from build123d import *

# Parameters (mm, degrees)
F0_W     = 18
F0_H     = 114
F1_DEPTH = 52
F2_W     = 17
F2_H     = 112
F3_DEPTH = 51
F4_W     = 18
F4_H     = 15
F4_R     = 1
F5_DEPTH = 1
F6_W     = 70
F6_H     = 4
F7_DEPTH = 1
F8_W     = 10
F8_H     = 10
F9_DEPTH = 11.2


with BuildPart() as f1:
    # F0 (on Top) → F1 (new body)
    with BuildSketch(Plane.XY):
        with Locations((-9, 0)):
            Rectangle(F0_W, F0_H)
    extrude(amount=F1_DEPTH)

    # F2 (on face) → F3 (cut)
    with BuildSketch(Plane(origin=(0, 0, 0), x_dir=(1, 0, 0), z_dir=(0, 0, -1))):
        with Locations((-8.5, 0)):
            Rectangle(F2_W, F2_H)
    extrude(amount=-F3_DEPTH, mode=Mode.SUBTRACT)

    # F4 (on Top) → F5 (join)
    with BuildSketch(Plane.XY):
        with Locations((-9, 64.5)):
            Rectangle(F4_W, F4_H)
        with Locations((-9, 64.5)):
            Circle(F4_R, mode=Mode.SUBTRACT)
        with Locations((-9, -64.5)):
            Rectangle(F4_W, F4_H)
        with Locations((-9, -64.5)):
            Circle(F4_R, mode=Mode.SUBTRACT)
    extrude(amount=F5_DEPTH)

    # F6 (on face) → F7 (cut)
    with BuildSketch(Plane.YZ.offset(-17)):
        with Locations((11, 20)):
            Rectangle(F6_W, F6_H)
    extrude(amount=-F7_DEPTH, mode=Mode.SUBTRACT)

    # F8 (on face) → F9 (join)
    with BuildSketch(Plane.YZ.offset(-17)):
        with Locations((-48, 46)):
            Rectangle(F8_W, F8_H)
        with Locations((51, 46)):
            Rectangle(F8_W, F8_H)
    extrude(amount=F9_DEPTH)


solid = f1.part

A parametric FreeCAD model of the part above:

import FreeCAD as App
import Part
import Sketcher
Q = App.Units.Quantity

doc = App.newDocument("Part")
body = doc.addObject("PartDesign::Body", "Body")

# Sketch on XY plane
sketch1 = doc.addObject("Sketcher::SketchObject", "Sketch")
body.addObject(sketch1)
sketch1.AttachmentSupport = (doc.XY_Plane, [""])
sketch1.MapMode = "FlatFace"
sketch1.addGeometry([
    Part.LineSegment(App.Vector(-18, 57, 0), App.Vector(-18, -57, 0)),
    Part.LineSegment(App.Vector(-18, -57, 0), App.Vector(0, -57, 0)),
    Part.LineSegment(App.Vector(0, -57, 0), App.Vector(0, 57, 0)),
    Part.LineSegment(App.Vector(0, 57, 0), App.Vector(-18, 57, 0)),
], False)
sketch1.addConstraint([
    Sketcher.Constraint("Coincident", 0, 2, 1, 1),
    Sketcher.Constraint("Coincident", 1, 2, 2, 1),
    Sketcher.Constraint("Coincident", 2, 2, 3, 1),
    Sketcher.Constraint("Coincident", 3, 2, 0, 1),
    Sketcher.Constraint("Vertical", 0),
    Sketcher.Constraint("Horizontal", 1),
    Sketcher.Constraint("Vertical", 2),
    Sketcher.Constraint("Horizontal", 3),
    Sketcher.Constraint("Symmetric", 1, 2, 2, 2, -1, 1),
    Sketcher.Constraint("DistanceX", 1, 1, 1, 2, Q("18 mm")),
    Sketcher.Constraint("DistanceY", 0, 2, 0, 1, Q("114 mm")),
])
pad1 = doc.addObject("PartDesign::Pad", "Pad")
body.addObject(pad1)
pad1.Profile = sketch1
pad1.Length = 52

# Sketch on XY plane
sketch2 = doc.addObject("Sketcher::SketchObject", "Sketch001")
body.addObject(sketch2)
sketch2.AttachmentSupport = (doc.XY_Plane, [""])
sketch2.MapMode = "FlatFace"
sketch2.addGeometry([
    Part.LineSegment(App.Vector(-17, -56, 0), App.Vector(-17, 56, 0)),
    Part.LineSegment(App.Vector(-17, 56, 0), App.Vector(0, 56, 0)),
    Part.LineSegment(App.Vector(0, 56, 0), App.Vector(0, -56, 0)),
    Part.LineSegment(App.Vector(0, -56, 0), App.Vector(-17, -56, 0)),
], False)
sketch2.addConstraint([
    Sketcher.Constraint("Coincident", 0, 2, 1, 1),
    Sketcher.Constraint("Coincident", 1, 2, 2, 1),
    Sketcher.Constraint("Coincident", 2, 2, 3, 1),
    Sketcher.Constraint("Coincident", 3, 2, 0, 1),
    Sketcher.Constraint("Vertical", 0),
    Sketcher.Constraint("Horizontal", 1),
    Sketcher.Constraint("Vertical", 2),
    Sketcher.Constraint("Horizontal", 3),
    Sketcher.Constraint("Symmetric", 1, 2, 2, 2, -1, 1),
    Sketcher.Constraint("DistanceX", 1, 1, 1, 2, Q("17 mm")),
    Sketcher.Constraint("DistanceY", 0, 1, 0, 2, Q("112 mm")),
])
pocket1 = doc.addObject("PartDesign::Pocket", "Pocket")
body.addObject(pocket1)
pocket1.Profile = sketch2
pocket1.Length = 51
pocket1.Reversed = True

# Sketch on XY plane
sketch3 = doc.addObject("Sketcher::SketchObject", "Sketch002")
body.addObject(sketch3)
sketch3.AttachmentSupport = (doc.XY_Plane, [""])
sketch3.MapMode = "FlatFace"
sketch3.addGeometry([
    Part.LineSegment(App.Vector(-18, 72, 0), App.Vector(-18, 57, 0)),  # 0
    Part.LineSegment(App.Vector(-18, 57, 0), App.Vector(0, 57, 0)),  # 1
    Part.LineSegment(App.Vector(0, 57, 0), App.Vector(0, 72, 0)),  # 2
    Part.LineSegment(App.Vector(0, 72, 0), App.Vector(-18, 72, 0)),  # 3
    Part.Circle(App.Vector(-9, 64.5, 0), App.Vector(0, 0, 1), 1),  # 4
    Part.LineSegment(App.Vector(-18, -57, 0), App.Vector(-18, -72, 0)),  # 5
    Part.LineSegment(App.Vector(-18, -72, 0), App.Vector(0, -72, 0)),  # 6
    Part.LineSegment(App.Vector(0, -72, 0), App.Vector(0, -57, 0)),  # 7
    Part.LineSegment(App.Vector(0, -57, 0), App.Vector(-18, -57, 0)),  # 8
    Part.Circle(App.Vector(-9, -64.5, 0), App.Vector(0, 0, 1), 1),  # 9
], False)
sketch3.addConstraint([
    Sketcher.Constraint("Coincident", 0, 2, 1, 1),
    Sketcher.Constraint("Coincident", 1, 2, 2, 1),
    Sketcher.Constraint("Coincident", 2, 2, 3, 1),
    Sketcher.Constraint("Coincident", 3, 2, 0, 1),
    Sketcher.Constraint("Coincident", 5, 2, 6, 1),
    Sketcher.Constraint("Coincident", 6, 2, 7, 1),
    Sketcher.Constraint("Coincident", 7, 2, 8, 1),
    Sketcher.Constraint("Coincident", 8, 2, 5, 1),
    Sketcher.Constraint("Vertical", 0),
    Sketcher.Constraint("Horizontal", 1),
    Sketcher.Constraint("Vertical", 2),
    Sketcher.Constraint("Horizontal", 3),
    Sketcher.Constraint("Vertical", 5),
    Sketcher.Constraint("Horizontal", 6),
    Sketcher.Constraint("Vertical", 7),
    Sketcher.Constraint("Horizontal", 8),
    Sketcher.Constraint("Equal", 4, 9),
    Sketcher.Constraint("Symmetric", 2, 2, 6, 2, -1, 1),
    Sketcher.Constraint("Symmetric", 4, 3, 9, 3, -1),
    Sketcher.Constraint("Symmetric", 1, 2, 7, 2, -1),
    Sketcher.Constraint("Vertical", 3, 2, 5, 2),
    Sketcher.Constraint("Diameter", 4, Q("2 mm")),
    Sketcher.Constraint("DistanceX", 1, 1, 1, 2, Q("18 mm")),
    Sketcher.Constraint("DistanceY", 0, 2, 0, 1, Q("15 mm")),
    Sketcher.Constraint("DistanceX", 4, 3, -1, 1, Q("9 mm")),
    Sketcher.Constraint("DistanceY", -1, 1, 0, 2, Q("57 mm")),
    Sketcher.Constraint("DistanceY", 9, 3, 4, 3, Q("129 mm")),
])
pad2 = doc.addObject("PartDesign::Pad", "Pad001")
body.addObject(pad2)
pad2.Profile = sketch3
pad2.Length = 1

# Sketch on YZ plane
sketch4 = doc.addObject("Sketcher::SketchObject", "Sketch003")
body.addObject(sketch4)
sketch4.AttachmentSupport = (doc.YZ_Plane, [""])
sketch4.MapMode = "FlatFace"
sketch4.AttachmentOffset = App.Placement(App.Vector(0, 0, -17), App.Rotation())
sketch4.addGeometry([
    Part.LineSegment(App.Vector(-24, 22, 0), App.Vector(-24, 18, 0)),
    Part.LineSegment(App.Vector(-24, 18, 0), App.Vector(46, 18, 0)),
    Part.LineSegment(App.Vector(46, 18, 0), App.Vector(46, 22, 0)),
    Part.LineSegment(App.Vector(46, 22, 0), App.Vector(-24, 22, 0)),
], False)
sketch4.addConstraint([
    Sketcher.Constraint("Coincident", 0, 2, 1, 1),
    Sketcher.Constraint("Coincident", 1, 2, 2, 1),
    Sketcher.Constraint("Coincident", 2, 2, 3, 1),
    Sketcher.Constraint("Coincident", 3, 2, 0, 1),
    Sketcher.Constraint("Vertical", 0),
    Sketcher.Constraint("Horizontal", 1),
    Sketcher.Constraint("Vertical", 2),
    Sketcher.Constraint("Horizontal", 3),
    Sketcher.Constraint("DistanceX", 1, 1, 1, 2, Q("70 mm")),
    Sketcher.Constraint("DistanceY", 0, 2, 0, 1, Q("4 mm")),
    Sketcher.Constraint("DistanceX", 0, 2, -1, 1, Q("24 mm")),
    Sketcher.Constraint("DistanceY", -1, 1, 0, 2, Q("18 mm")),
])
pocket2 = doc.addObject("PartDesign::Pocket", "Pocket001")
body.addObject(pocket2)
pocket2.Profile = sketch4
pocket2.Length = 1

# Sketch on YZ plane
sketch5 = doc.addObject("Sketcher::SketchObject", "Sketch004")
body.addObject(sketch5)
sketch5.AttachmentSupport = (doc.YZ_Plane, [""])
sketch5.MapMode = "FlatFace"
sketch5.AttachmentOffset = App.Placement(App.Vector(0, 0, -17), App.Rotation())
sketch5.addGeometry([
    Part.LineSegment(App.Vector(-53, 51, 0), App.Vector(-53, 41, 0)),  # 0
    Part.LineSegment(App.Vector(-53, 41, 0), App.Vector(-43, 41, 0)),  # 1
    Part.LineSegment(App.Vector(-43, 41, 0), App.Vector(-43, 51, 0)),  # 2
    Part.LineSegment(App.Vector(-43, 51, 0), App.Vector(-53, 51, 0)),  # 3
    Part.LineSegment(App.Vector(46, 51, 0), App.Vector(46, 41, 0)),  # 4
    Part.LineSegment(App.Vector(46, 41, 0), App.Vector(56, 41, 0)),  # 5
    Part.LineSegment(App.Vector(56, 41, 0), App.Vector(56, 51, 0)),  # 6
    Part.LineSegment(App.Vector(56, 51, 0), App.Vector(46, 51, 0)),  # 7
], False)
sketch5.addConstraint([
    Sketcher.Constraint("Coincident", 0, 2, 1, 1),
    Sketcher.Constraint("Coincident", 1, 2, 2, 1),
    Sketcher.Constraint("Coincident", 2, 2, 3, 1),
    Sketcher.Constraint("Coincident", 3, 2, 0, 1),
    Sketcher.Constraint("Coincident", 4, 2, 5, 1),
    Sketcher.Constraint("Coincident", 5, 2, 6, 1),
    Sketcher.Constraint("Coincident", 6, 2, 7, 1),
    Sketcher.Constraint("Coincident", 7, 2, 4, 1),
    Sketcher.Constraint("Vertical", 0),
    Sketcher.Constraint("Horizontal", 1),
    Sketcher.Constraint("Vertical", 2),
    Sketcher.Constraint("Horizontal", 3),
    Sketcher.Constraint("Vertical", 4),
    Sketcher.Constraint("Horizontal", 5),
    Sketcher.Constraint("Vertical", 6),
    Sketcher.Constraint("Horizontal", 7),
    Sketcher.Constraint("Horizontal", 1, 2, 4, 2),
    Sketcher.Constraint("Horizontal", 3, 2, 6, 2),
    Sketcher.Constraint("Equal", 3, 5),
    Sketcher.Constraint("Equal", 7, 0),
    Sketcher.Constraint("DistanceX", 1, 1, 1, 2, Q("10 mm")),
    Sketcher.Constraint("DistanceX", 0, 2, -1, 1, Q("53 mm")),
    Sketcher.Constraint("DistanceY", -1, 1, 0, 2, Q("41 mm")),
    Sketcher.Constraint("DistanceX", -1, 1, 4, 2, Q("46 mm")),
])
pad3 = doc.addObject("PartDesign::Pad", "Pad002")
body.addObject(pad3)
pad3.Profile = sketch5
pad3.Length = 11.2

doc.recompute()
